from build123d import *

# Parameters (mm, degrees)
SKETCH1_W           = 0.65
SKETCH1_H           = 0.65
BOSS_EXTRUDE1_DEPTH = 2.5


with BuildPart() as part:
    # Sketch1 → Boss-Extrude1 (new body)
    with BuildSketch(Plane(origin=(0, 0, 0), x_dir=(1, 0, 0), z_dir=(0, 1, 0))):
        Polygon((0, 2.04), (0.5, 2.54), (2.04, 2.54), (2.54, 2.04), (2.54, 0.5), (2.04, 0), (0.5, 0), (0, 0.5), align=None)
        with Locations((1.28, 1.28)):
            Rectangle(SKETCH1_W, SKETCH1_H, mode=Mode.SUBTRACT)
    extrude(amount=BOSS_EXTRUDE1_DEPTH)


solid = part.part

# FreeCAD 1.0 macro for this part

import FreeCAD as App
import Part
import Sketcher
from FreeCAD import Vector

doc = App.newDocument("Part")
body = doc.addObject("PartDesign::Body", "Body")

# Sketch on XZ plane
sketch1 = body.newObject("Sketcher::SketchObject", "Sketch")
sketch1.AttachmentSupport = (doc.getObject("XZ_Plane"), [""])
sketch1.MapMode = "FlatFace"
sketch1.addGeometry([
    Part.LineSegment(Vector(0.5, -2.5, 0), Vector(0, -2, 0)),  # 0
    Part.LineSegment(Vector(0, -2, 0), Vector(0, -0.5, 0)),  # 1
    Part.LineSegment(Vector(0, -0.5, 0), Vector(0.5, 0, 0)),  # 2
    Part.LineSegment(Vector(0.5, 0, 0), Vector(2, 0, 0)),  # 3
    Part.LineSegment(Vector(2, 0, 0), Vector(2.5, -0.5, 0)),  # 4
    Part.LineSegment(Vector(2.5, -0.5, 0), Vector(2.5, -2, 0)),  # 5
    Part.LineSegment(Vector(2.5, -2, 0), Vector(2, -2.5, 0)),  # 6
    Part.LineSegment(Vector(2, -2.5, 0), Vector(0.5, -2.5, 0)),  # 7
    Part.LineSegment(Vector(1, -1, 0), Vector(1, -1.6, 0)),  # 8
    Part.LineSegment(Vector(1, -1.6, 0), Vector(1.6, -1.6, 0)),  # 9
    Part.LineSegment(Vector(1.6, -1.6, 0), Vector(1.6, -1, 0)),  # 10
    Part.LineSegment(Vector(1.6, -1, 0), Vector(1, -1, 0)),  # 11
], False)
sketch1.addConstraint([
    Sketcher.Constraint("Coincident", 0, 2, 1, 1),
    Sketcher.Constraint("Coincident", 1, 2, 2, 1),
    Sketcher.Constraint("Coincident", 2, 2, 3, 1),
    Sketcher.Constraint("Coincident", 3, 2, 4, 1),
    Sketcher.Constraint("Coincident", 4, 2, 5, 1),
    Sketcher.Constraint("Coincident", 5, 2, 6, 1),
    Sketcher.Constraint("Coincident", 6, 2, 7, 1),
    Sketcher.Constraint("Coincident", 7, 2, 0, 1),
    Sketcher.Constraint("Coincident", 8, 2, 9, 1),
    Sketcher.Constraint("Coincident", 9, 2, 10, 1),
    Sketcher.Constraint("Coincident", 10, 2, 11, 1),
    Sketcher.Constraint("Coincident", 11, 2, 8, 1),
    Sketcher.Constraint("Vertical", 1),
    Sketcher.Constraint("Horizontal", 3),
    Sketcher.Constraint("Vertical", 5),
    Sketcher.Constraint("Horizontal", 7),
    Sketcher.Constraint("Vertical", 8),
    Sketcher.Constraint("Horizontal", 9),
    Sketcher.Constraint("Vertical", 10),
    Sketcher.Constraint("Horizontal", 11),
    Sketcher.Constraint("PointOnObject", 0, 2, -2),
    Sketcher.Constraint("PointOnObject", 2, 2, -1),
    Sketcher.Constraint("Perpendicular", 0, 2),
    Sketcher.Constraint("Perpendicular", 2, 4),
    Sketcher.Constraint("Perpendicular", 4, 6),
    Sketcher.Constraint("Horizontal", 1, 2, 4, 2),
    Sketcher.Constraint("Horizontal", 0, 2, 5, 2),
    Sketcher.Constraint("Vertical", 3, 2, 6, 2),
    Sketcher.Constraint("Vertical", 2, 2, 7, 2),
    Sketcher.Constraint("Equal", 7, 1),
    Sketcher.Constraint("Equal", 11, 8),
    Sketcher.Constraint("DistanceX", 3, 1, 3, 2, 1.54),
    Sketcher.Constraint("DistanceX", 9, 1, 9, 2, 0.65),
    Sketcher.Constraint("DistanceY", 1, 2, -1, 1, 0.5),
    Sketcher.Constraint("DistanceX", -1, 1, 8, 2, 0.955),
    Sketcher.Constraint("DistanceY", 8, 2, -1, 1, 1.605),
])
pad1 = body.newObject("PartDesign::Pad", "Pad")
pad1.Profile = sketch1
pad1.Length = 2.5
pad1.Reversed = True

doc.recompute()
